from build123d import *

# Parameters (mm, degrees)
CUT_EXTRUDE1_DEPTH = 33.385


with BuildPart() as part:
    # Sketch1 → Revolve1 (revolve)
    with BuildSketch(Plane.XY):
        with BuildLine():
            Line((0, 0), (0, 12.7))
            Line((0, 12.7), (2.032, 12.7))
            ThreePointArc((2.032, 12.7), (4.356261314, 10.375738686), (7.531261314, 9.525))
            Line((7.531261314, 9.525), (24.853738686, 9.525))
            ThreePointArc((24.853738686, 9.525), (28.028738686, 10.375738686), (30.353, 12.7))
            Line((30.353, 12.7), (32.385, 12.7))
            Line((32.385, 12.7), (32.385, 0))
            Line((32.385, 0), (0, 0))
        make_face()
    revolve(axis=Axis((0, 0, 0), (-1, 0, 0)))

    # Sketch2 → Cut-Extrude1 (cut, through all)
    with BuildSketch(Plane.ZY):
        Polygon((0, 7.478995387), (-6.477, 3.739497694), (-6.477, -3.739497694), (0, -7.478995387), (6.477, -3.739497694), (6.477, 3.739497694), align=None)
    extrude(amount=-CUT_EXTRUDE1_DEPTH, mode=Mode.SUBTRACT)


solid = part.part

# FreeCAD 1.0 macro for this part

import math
import FreeCAD as App
import Part
import Sketcher

V = App.Vector
Q = App.Units.Quantity


def add_polygon(sketch, points):
    """Adds a closed chain of lines whose ends are joined by coincident constraints."""
    first, n = sketch.GeometryCount, len(points)
    for a, b in zip(points, points[1:] + points[:1]):
        sketch.addGeometry(Part.LineSegment(App.Vector(*a, 0), App.Vector(*b, 0)), False)
    for i in range(n):
        sketch.addConstraint(Sketcher.Constraint("Coincident", first + i, 2, first + (i + 1) % n, 1))

doc = App.newDocument("Part")
body = doc.addObject("PartDesign::Body", "Body")

# Sketch on XY plane
sketch1 = doc.addObject("Sketcher::SketchObject", "Sketch")
body.addObject(sketch1)
sketch1.AttachmentSupport = (doc.XY_Plane, [""])
sketch1.MapMode = "FlatFace"
sketch1.addGeometry([
    Part.LineSegment(V(0, 12.7, 0), V(0, 0, 0)),  # 0
    Part.LineSegment(V(0, 0, 0), V(32.4, 0, 0)),  # 1
    Part.LineSegment(V(32.4, 0, 0), V(32.4, 12.7, 0)),  # 2
    Part.LineSegment(V(32.4, 12.7, 0), V(30.4, 12.7, 0)),  # 3
    Part.ArcOfCircle(Part.Circle(V(24.9, 15.9, 0), V(0, 0, 1), 6.3), math.radians(-90), math.radians(-30)),  # 4
    Part.LineSegment(V(24.9, 9.5, 0), V(7.5, 9.5, 0)),  # 5
    Part.ArcOfCircle(Part.Circle(V(7.5, 15.9, 0), V(0, 0, 1), 6.3), math.radians(-150), math.radians(-90)),  # 6
    Part.LineSegment(V(2, 12.7, 0), V(0, 12.7, 0)),  # 7
], False)
sketch1.addConstraint([
    Sketcher.Constraint("Coincident", 0, 2, 1, 1),
    Sketcher.Constraint("Coincident", 1, 2, 2, 1),
    Sketcher.Constraint("Coincident", 2, 2, 3, 1),
    Sketcher.Constraint("Coincident", 3, 2, 4, 2),
    Sketcher.Constraint("Tangent", 4, 1, 5, 1),
    Sketcher.Constraint("Tangent", 5, 2, 6, 2),
    Sketcher.Constraint("Coincident", 6, 1, 7, 1),
    Sketcher.Constraint("Coincident", 7, 2, 0, 1),
    Sketcher.Constraint("Vertical", 0),
    Sketcher.Constraint("Horizontal", 1),
    Sketcher.Constraint("Vertical", 2),
    Sketcher.Constraint("Horizontal", 3),
    Sketcher.Constraint("Horizontal", 5),
    Sketcher.Constraint("Horizontal", 7),
    Sketcher.Constraint("Coincident", 0, 2, -1, 1),
    Sketcher.Constraint("Equal", 4, 6),
    Sketcher.Constraint("Horizontal", 3, 2, 6, 1),
    Sketcher.Constraint("Equal", 3, 7),
    Sketcher.Constraint("Radius", 4, Q("0.25 in")),
    Sketcher.Constraint("DistanceY", 0, 2, 0, 1, Q("0.5 in")),
    Sketcher.Constraint("DistanceX", 3, 2, 3, 1, Q("0.08 in")),
    Sketcher.Constraint("DistanceX", 1, 1, 1, 2, Q("1.275 in")),
    Sketcher.Constraint("DistanceY", -1, 1, 4, 3, Q("0.625 in")),
])
revolution = doc.addObject("PartDesign::Revolution", "Revolution")
body.addObject(revolution)
revolution.Profile = sketch1
revolution.ReferenceAxis = (sketch1, ["H_Axis"])
revolution.Angle = 360

# Sketch on YZ plane
sketch2 = doc.addObject("Sketcher::SketchObject", "Sketch001")
body.addObject(sketch2)
sketch2.AttachmentSupport = (doc.YZ_Plane, [""])
sketch2.MapMode = "FlatFace"
add_polygon(sketch2, [(7, 0), (4, -6), (-4, -6), (-7, 0), (-4, 6), (4, 6)])  # lines 0-5
sketch2.addConstraint([
    Sketcher.Constraint("Horizontal", 1),
    Sketcher.Constraint("Horizontal", 4),
    Sketcher.Constraint("Symmetric", 0, 2, 3, 2, -1, 1),
    Sketcher.Constraint("Symmetric", 2, 2, 5, 2, -1, 1),
    Sketcher.Constraint("PointOnObject", 2, 2, -1),
    Sketcher.Constraint("Parallel", 2, 5),
    Sketcher.Constraint("Vertical", 1, 2, 3, 2),
    Sketcher.Constraint("Angle", 0, Q("-120 deg")),
    Sketcher.Constraint("DistanceY", 1, 2, 3, 2, Q("0.51 in")),
    Sketcher.Constraint("DistanceX", 1, 2, 1, 1, 7.478995),
])
pocket1 = doc.addObject("PartDesign::Pocket", "Pocket")
body.addObject(pocket1)
pocket1.Profile = sketch2
pocket1.Type = "ThroughAll"
pocket1.Reversed = True

doc.recompute()
